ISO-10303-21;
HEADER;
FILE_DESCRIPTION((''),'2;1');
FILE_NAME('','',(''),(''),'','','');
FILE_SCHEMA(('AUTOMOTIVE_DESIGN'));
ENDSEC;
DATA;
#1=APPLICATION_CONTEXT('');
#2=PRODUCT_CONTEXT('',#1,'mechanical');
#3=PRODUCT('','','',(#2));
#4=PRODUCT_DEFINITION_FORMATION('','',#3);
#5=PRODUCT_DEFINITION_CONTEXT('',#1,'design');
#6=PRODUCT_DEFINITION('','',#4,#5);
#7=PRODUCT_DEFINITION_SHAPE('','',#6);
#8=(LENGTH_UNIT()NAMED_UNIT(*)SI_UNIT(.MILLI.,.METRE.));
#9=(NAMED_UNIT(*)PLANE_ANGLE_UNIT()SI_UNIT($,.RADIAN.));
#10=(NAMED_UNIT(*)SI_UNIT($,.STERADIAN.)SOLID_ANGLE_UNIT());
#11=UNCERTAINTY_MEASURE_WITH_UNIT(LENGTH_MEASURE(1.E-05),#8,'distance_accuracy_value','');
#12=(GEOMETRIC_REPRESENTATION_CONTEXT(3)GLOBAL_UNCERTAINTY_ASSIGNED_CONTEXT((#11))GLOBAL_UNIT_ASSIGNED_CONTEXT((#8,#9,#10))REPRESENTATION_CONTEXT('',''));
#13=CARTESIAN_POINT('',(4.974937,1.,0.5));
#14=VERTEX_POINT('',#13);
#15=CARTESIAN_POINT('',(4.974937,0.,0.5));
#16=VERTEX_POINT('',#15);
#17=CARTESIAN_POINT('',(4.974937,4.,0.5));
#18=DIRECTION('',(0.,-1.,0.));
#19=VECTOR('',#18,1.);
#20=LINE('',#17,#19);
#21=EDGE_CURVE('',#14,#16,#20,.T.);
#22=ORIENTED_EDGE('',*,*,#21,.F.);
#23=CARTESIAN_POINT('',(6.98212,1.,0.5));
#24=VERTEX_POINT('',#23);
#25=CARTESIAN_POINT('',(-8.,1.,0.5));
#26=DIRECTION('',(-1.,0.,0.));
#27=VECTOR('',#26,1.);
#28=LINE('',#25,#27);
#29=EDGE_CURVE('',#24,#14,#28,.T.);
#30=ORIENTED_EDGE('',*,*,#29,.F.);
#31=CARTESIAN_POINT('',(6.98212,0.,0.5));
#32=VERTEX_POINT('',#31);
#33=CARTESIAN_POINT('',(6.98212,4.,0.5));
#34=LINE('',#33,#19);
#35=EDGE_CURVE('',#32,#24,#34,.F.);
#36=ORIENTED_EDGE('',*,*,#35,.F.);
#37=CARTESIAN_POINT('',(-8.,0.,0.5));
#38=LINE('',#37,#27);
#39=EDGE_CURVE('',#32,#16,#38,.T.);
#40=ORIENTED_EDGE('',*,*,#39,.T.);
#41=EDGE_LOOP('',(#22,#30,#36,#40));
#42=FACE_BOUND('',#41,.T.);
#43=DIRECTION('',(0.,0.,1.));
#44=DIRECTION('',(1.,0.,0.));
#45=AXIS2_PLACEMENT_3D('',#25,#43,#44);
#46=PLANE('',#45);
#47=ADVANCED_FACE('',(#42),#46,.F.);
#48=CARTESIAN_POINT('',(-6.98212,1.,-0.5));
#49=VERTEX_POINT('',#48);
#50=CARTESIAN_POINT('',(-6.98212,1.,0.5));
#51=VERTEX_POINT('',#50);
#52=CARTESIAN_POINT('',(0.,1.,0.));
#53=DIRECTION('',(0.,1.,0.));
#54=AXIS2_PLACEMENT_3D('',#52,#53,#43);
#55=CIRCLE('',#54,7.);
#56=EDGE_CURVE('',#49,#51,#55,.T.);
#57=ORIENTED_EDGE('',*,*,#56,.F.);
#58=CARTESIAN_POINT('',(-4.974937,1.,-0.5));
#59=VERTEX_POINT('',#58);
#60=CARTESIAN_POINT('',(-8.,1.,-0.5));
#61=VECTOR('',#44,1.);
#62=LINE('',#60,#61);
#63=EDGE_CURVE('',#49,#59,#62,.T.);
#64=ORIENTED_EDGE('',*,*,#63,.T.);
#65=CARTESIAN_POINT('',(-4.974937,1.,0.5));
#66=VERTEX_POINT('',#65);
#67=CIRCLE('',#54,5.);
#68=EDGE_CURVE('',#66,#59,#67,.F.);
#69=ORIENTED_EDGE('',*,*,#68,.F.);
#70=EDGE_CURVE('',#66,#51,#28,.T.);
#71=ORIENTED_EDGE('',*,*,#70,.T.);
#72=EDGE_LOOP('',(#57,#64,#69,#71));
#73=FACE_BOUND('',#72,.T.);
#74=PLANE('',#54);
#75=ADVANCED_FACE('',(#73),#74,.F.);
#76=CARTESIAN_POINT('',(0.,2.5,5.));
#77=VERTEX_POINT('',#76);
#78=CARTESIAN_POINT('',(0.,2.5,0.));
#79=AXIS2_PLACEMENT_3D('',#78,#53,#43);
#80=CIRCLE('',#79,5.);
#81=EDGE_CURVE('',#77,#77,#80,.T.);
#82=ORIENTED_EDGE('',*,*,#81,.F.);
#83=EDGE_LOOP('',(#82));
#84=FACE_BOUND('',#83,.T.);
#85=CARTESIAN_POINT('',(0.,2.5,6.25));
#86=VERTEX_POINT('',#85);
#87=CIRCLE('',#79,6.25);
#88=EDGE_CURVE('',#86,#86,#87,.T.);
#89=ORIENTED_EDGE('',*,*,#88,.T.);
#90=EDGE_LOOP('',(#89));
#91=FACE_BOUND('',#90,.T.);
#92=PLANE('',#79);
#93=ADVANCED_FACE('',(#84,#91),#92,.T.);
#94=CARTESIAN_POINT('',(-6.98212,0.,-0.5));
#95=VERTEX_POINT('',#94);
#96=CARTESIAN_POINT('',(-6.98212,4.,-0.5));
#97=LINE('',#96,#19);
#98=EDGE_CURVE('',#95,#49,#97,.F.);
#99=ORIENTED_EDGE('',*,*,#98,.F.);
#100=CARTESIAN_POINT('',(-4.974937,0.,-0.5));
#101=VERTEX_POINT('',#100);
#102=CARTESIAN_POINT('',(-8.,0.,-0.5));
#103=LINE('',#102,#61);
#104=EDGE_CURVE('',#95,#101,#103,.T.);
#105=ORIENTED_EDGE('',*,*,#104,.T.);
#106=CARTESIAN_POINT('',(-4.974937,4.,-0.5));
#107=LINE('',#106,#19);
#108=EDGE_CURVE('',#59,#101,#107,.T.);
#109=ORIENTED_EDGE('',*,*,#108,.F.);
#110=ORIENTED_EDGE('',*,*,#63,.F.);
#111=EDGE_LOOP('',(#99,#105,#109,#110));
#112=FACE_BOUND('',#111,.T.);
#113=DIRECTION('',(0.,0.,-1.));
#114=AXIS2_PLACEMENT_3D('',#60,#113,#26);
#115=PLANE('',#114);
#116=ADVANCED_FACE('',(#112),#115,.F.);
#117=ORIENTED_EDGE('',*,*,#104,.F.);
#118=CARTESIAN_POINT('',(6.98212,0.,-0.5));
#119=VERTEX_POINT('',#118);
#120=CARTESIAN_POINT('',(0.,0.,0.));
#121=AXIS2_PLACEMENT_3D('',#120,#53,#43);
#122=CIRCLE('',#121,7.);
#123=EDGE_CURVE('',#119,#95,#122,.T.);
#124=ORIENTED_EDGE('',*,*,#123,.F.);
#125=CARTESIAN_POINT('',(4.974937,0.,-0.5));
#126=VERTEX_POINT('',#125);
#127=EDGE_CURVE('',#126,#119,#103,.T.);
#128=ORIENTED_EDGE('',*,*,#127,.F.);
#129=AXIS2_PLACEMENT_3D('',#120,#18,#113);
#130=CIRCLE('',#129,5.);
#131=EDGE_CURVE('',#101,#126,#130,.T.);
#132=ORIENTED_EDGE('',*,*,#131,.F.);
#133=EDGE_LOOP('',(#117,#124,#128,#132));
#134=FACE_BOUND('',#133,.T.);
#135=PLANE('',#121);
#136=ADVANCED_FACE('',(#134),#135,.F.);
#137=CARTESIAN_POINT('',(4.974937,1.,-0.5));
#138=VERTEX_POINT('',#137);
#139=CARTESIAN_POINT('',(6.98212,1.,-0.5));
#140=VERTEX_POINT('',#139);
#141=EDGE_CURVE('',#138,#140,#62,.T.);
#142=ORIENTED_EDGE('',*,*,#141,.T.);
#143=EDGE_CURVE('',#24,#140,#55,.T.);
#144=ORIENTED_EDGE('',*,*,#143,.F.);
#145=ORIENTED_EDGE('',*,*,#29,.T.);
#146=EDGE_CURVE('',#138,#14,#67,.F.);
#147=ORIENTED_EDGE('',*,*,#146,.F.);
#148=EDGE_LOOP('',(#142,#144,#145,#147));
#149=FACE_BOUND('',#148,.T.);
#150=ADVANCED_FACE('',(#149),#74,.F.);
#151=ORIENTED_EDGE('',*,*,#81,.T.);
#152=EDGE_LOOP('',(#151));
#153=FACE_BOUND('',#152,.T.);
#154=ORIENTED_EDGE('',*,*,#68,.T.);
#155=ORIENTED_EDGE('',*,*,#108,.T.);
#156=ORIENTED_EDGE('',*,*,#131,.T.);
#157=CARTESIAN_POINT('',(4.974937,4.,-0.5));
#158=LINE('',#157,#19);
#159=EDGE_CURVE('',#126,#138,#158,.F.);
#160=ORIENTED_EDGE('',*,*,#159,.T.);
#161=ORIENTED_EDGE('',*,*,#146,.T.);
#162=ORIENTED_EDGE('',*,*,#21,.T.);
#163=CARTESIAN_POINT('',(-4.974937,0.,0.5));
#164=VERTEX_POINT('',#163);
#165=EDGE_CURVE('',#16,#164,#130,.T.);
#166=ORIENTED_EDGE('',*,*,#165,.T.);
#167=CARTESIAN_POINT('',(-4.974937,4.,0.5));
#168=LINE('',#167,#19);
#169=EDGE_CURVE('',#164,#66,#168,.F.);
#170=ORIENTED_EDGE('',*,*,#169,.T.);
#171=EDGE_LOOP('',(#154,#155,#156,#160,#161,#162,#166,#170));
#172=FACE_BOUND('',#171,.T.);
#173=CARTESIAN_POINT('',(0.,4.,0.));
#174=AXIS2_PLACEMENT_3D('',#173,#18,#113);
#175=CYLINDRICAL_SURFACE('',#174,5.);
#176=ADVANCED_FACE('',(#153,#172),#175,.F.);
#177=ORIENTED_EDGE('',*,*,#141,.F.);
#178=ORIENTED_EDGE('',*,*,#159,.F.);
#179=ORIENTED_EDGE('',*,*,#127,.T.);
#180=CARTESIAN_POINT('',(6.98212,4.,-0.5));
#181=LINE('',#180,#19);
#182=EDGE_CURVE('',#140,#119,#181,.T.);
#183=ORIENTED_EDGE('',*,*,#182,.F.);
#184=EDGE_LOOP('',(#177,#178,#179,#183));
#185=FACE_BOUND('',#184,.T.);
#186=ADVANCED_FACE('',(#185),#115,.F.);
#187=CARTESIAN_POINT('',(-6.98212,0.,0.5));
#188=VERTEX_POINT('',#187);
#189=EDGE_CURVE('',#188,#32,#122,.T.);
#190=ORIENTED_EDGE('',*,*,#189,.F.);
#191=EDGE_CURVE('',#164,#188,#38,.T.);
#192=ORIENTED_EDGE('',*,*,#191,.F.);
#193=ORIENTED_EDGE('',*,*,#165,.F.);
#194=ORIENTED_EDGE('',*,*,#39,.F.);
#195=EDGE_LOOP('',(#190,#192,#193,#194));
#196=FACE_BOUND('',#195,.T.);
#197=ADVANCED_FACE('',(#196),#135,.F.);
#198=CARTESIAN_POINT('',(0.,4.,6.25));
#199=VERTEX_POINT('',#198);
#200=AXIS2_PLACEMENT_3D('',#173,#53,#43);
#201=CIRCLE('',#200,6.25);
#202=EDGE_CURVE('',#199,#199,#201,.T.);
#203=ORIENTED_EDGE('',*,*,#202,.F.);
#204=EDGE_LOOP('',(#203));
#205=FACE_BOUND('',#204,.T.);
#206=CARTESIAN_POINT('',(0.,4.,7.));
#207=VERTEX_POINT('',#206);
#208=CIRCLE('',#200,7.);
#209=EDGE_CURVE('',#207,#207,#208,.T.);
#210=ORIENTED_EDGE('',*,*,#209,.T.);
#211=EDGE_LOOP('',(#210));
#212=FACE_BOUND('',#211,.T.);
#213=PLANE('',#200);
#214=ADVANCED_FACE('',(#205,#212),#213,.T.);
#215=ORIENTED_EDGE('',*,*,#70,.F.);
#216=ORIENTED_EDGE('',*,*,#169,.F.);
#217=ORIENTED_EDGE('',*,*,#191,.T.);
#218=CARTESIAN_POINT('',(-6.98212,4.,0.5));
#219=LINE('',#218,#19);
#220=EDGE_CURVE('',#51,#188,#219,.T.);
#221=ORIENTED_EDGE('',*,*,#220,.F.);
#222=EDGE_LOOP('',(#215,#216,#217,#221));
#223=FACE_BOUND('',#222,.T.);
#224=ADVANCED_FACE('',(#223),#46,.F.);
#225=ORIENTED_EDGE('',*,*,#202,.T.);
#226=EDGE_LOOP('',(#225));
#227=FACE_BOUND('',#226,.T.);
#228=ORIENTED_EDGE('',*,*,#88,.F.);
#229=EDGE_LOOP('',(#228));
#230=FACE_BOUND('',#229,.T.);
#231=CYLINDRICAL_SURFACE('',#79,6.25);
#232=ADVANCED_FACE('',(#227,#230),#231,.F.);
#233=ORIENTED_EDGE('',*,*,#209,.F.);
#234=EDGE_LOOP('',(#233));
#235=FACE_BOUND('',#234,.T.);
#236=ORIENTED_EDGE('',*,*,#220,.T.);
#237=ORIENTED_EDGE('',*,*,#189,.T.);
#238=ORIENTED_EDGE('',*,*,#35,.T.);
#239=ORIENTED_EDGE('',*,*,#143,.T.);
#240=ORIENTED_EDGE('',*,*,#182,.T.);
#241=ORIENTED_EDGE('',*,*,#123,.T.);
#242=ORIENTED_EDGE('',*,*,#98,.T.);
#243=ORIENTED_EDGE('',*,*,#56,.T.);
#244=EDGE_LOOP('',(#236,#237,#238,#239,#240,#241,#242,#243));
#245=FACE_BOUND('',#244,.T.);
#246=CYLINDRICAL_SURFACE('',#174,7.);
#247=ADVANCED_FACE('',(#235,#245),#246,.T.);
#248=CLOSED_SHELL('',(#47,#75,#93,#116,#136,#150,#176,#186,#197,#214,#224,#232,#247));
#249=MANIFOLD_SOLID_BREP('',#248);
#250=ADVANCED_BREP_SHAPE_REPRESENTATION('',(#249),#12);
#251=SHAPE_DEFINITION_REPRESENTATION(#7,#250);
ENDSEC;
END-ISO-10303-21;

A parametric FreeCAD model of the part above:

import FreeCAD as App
import Part
import Sketcher
from FreeCAD import Vector
Q = App.Units.Quantity


def add_polygon(sketch, points):
    """Adds a closed chain of lines whose ends are joined by coincident constraints."""
    first, n = sketch.GeometryCount, len(points)
    for a, b in zip(points, points[1:] + points[:1]):
        sketch.addGeometry(Part.LineSegment(App.Vector(*a, 0), App.Vector(*b, 0)), False)
    for i in range(n):
        sketch.addConstraint(Sketcher.Constraint("Coincident", first + i, 2, first + (i + 1) % n, 1))

doc = App.newDocument("Part")
body = doc.addObject("PartDesign::Body", "Body")

# Sketch on XZ plane
sketch1 = body.newObject("Sketcher::SketchObject", "Sketch")
sketch1.AttachmentSupport = (doc.getObject("XZ_Plane"), [""])
sketch1.MapMode = "FlatFace"
sketch1.addGeometry(Part.Circle(Vector(0, 0, 0), Vector(0, 0, 1), 7), False)
sketch1.addConstraint(Sketcher.Constraint("Coincident", 0, 3, -1, 1))
sketch1.addConstraint(Sketcher.Constraint("Diameter", 0, Q("14 mm")))
pad1 = body.newObject("PartDesign::Pad", "Pad")
pad1.Profile = sketch1
pad1.Length = 4
pad1.Reversed = True

# Sketch on XZ plane
sketch2 = body.newObject("Sketcher::SketchObject", "Sketch001")
sketch2.AttachmentSupport = (doc.getObject("XZ_Plane"), [""])
sketch2.MapMode = "FlatFace"
sketch2.AttachmentOffset = App.Placement(Vector(0, 0, -4), App.Rotation())
sketch2.addGeometry(Part.Circle(Vector(0, 0, 0), Vector(0, 0, 1), 6), False)
sketch2.addConstraint(Sketcher.Constraint("Coincident", 0, 3, -1, 1))
sketch2.addConstraint(Sketcher.Constraint("Diameter", 0, Q("12.5 mm")))
pocket1 = body.newObject("PartDesign::Pocket", "Pocket")
pocket1.Profile = sketch2
pocket1.Length = 1.5
pocket1.Reversed = True

# Sketch on XZ plane
sketch3 = body.newObject("Sketcher::SketchObject", "Sketch002")
sketch3.AttachmentSupport = (doc.getObject("XZ_Plane"), [""])
sketch3.MapMode = "FlatFace"
sketch3.addGeometry(Part.Circle(Vector(0, 0, 0), Vector(0, 0, 1), 5), False)
sketch3.addConstraint(Sketcher.Constraint("Coincident", 0, 3, -1, 1))
sketch3.addConstraint(Sketcher.Constraint("Diameter", 0, Q("10 mm")))
pocket2 = body.newObject("PartDesign::Pocket", "Pocket001")
pocket2.Profile = sketch3
pocket2.Type = "ThroughAll"

# Sketch on XZ plane
sketch4 = body.newObject("Sketcher::SketchObject", "Sketch003")
sketch4.AttachmentSupport = (doc.getObject("XZ_Plane"), [""])
sketch4.MapMode = "FlatFace"
add_polygon(sketch4, [(-8, 0.5), (-8, -0.5), (8, -0.5), (8, 0.5)])  # lines 0-3
sketch4.addConstraint(Sketcher.Constraint("Vertical", 0))
sketch4.addConstraint(Sketcher.Constraint("Horizontal", 1))
sketch4.addConstraint(Sketcher.Constraint("Vertical", 2))
sketch4.addConstraint(Sketcher.Constraint("Horizontal", 3))
sketch4.addConstraint(Sketcher.Constraint("Symmetric", 0, 2, 2, 2, -1, 1))
sketch4.addConstraint(Sketcher.Constraint("DistanceX", 1, 1, 1, 2, Q("16 mm")))
sketch4.addConstraint(Sketcher.Constraint("DistanceY", 0, 2, 0, 1, Q("1 mm")))
pocket3 = body.newObject("PartDesign::Pocket", "Pocket002")
pocket3.Profile = sketch4
pocket3.Length = 1

doc.recompute()
